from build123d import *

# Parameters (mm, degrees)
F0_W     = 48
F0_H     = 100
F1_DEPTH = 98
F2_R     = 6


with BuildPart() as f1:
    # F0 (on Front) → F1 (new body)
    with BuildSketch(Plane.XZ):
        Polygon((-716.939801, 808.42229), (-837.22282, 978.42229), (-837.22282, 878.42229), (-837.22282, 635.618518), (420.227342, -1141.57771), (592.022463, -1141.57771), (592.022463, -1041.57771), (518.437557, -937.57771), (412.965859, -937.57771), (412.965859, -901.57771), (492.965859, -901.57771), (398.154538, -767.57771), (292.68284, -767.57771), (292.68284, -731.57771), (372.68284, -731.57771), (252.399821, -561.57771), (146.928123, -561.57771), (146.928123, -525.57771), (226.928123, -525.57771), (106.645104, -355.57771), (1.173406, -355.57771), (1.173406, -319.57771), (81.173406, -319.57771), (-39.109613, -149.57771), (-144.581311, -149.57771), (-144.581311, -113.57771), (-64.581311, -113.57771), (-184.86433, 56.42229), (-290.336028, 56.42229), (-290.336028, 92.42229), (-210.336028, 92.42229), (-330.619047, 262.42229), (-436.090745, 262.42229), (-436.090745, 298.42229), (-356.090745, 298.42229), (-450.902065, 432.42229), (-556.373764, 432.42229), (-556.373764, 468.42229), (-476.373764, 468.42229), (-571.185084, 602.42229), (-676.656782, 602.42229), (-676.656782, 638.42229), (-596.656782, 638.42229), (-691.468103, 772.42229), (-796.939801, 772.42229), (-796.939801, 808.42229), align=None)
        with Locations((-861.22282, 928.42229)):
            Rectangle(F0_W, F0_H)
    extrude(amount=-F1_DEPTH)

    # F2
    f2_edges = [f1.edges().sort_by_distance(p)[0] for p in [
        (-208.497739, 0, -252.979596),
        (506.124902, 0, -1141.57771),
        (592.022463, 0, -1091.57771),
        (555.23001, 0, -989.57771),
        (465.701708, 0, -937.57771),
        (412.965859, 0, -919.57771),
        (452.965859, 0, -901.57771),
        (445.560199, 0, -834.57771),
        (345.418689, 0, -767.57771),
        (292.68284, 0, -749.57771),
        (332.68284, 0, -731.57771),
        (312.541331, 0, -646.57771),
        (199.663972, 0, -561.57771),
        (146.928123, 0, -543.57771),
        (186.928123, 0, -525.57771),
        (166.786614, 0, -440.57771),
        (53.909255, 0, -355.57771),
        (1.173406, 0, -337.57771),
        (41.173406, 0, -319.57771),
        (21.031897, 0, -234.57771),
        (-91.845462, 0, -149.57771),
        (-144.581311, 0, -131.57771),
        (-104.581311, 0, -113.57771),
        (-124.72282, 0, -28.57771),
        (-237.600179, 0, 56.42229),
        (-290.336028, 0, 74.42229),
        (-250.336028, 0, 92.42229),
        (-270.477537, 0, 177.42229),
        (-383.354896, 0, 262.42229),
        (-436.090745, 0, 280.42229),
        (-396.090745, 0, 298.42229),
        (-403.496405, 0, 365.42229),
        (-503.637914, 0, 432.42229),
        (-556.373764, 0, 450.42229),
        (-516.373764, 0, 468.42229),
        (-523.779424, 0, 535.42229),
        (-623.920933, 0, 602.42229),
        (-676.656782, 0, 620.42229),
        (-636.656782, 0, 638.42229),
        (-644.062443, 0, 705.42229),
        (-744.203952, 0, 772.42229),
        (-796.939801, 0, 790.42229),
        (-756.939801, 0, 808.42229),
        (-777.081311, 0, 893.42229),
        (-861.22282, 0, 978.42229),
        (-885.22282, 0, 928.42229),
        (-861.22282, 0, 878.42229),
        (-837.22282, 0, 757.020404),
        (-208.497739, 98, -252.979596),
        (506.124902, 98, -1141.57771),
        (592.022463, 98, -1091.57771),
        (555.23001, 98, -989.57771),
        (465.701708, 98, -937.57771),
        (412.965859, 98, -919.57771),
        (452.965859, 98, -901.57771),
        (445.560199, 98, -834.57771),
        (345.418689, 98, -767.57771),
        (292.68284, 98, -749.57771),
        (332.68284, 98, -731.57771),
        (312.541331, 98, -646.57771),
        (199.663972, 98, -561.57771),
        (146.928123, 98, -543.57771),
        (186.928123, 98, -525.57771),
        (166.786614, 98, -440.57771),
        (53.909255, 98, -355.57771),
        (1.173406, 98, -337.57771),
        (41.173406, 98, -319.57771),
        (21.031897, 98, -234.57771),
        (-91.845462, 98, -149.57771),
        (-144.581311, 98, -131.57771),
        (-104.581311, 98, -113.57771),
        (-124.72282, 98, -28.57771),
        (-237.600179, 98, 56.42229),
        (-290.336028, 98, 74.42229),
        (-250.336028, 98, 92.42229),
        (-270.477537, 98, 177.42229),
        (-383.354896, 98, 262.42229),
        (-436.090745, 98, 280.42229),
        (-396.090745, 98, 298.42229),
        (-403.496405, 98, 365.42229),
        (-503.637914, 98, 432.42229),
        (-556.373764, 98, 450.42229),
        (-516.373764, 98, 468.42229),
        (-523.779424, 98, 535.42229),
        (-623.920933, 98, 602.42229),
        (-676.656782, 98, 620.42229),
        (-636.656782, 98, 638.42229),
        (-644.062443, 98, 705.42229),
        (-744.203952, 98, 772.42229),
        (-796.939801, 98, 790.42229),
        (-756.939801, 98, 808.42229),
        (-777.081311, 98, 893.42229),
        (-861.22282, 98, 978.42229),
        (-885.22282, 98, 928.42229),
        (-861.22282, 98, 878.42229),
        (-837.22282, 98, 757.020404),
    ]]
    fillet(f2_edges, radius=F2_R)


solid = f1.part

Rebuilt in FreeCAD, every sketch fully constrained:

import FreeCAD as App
import Part
import Sketcher
Q = App.Units.Quantity


def edges_at(feature, points):
    """Names of the edges that pass closest to the given points."""
    edges = feature.Shape.Edges
    near = lambda p: min(range(len(edges)), key=lambda i: edges[i].distToShape(Part.Vertex(*p))[0])
    return sorted({f"Edge{near(p) + 1}" for p in points})

doc = App.newDocument("Part")
body = doc.addObject("PartDesign::Body", "Body")

# Sketch on XZ plane
sketch1 = body.newObject("Sketcher::SketchObject", "Sketch")
sketch1.AttachmentSupport = (doc.getObject("XZ_Plane"), [""])
sketch1.MapMode = "FlatFace"
sketch1.addGeometry(Part.LineSegment(App.Vector(-717, 808, 0), App.Vector(-837, 978, 0)), False)
sketch1.addGeometry(Part.LineSegment(App.Vector(-837, 978, 0), App.Vector(-885, 978, 0)), False)
sketch1.addGeometry(Part.LineSegment(App.Vector(-885, 978, 0), App.Vector(-885, 878, 0)), False)
sketch1.addGeometry(Part.LineSegment(App.Vector(-885, 878, 0), App.Vector(-837, 878, 0)), False)
sketch1.addGeometry(Part.LineSegment(App.Vector(-837, 878, 0), App.Vector(-837, 636, 0)), False)
sketch1.addGeometry(Part.LineSegment(App.Vector(-837, 636, 0), App.Vector(420, -1142, 0)), False)
sketch1.addGeometry(Part.LineSegment(App.Vector(420, -1142, 0), App.Vector(592, -1142, 0)), False)
sketch1.addGeometry(Part.LineSegment(App.Vector(592, -1142, 0), App.Vector(592, -1042, 0)), False)
sketch1.addGeometry(Part.LineSegment(App.Vector(592, -1042, 0), App.Vector(518, -938, 0)), False)
sketch1.addGeometry(Part.LineSegment(App.Vector(518, -938, 0), App.Vector(413, -938, 0)), False)
sketch1.addGeometry(Part.LineSegment(App.Vector(413, -938, 0), App.Vector(413, -902, 0)), False)
sketch1.addGeometry(Part.LineSegment(App.Vector(413, -902, 0), App.Vector(493, -902, 0)), False)
sketch1.addGeometry(Part.LineSegment(App.Vector(493, -902, 0), App.Vector(398, -768, 0)), False)
sketch1.addGeometry(Part.LineSegment(App.Vector(398, -768, 0), App.Vector(293, -768, 0)), False)
sketch1.addGeometry(Part.LineSegment(App.Vector(293, -768, 0), App.Vector(293, -732, 0)), False)
sketch1.addGeometry(Part.LineSegment(App.Vector(293, -732, 0), App.Vector(373, -732, 0)), False)
sketch1.addGeometry(Part.LineSegment(App.Vector(373, -732, 0), App.Vector(252, -562, 0)), False)
sketch1.addGeometry(Part.LineSegment(App.Vector(252, -562, 0), App.Vector(147, -562, 0)), False)
sketch1.addGeometry(Part.LineSegment(App.Vector(147, -562, 0), App.Vector(147, -526, 0)), False)
sketch1.addGeometry(Part.LineSegment(App.Vector(147, -526, 0), App.Vector(227, -526, 0)), False)
sketch1.addGeometry(Part.LineSegment(App.Vector(227, -526, 0), App.Vector(107, -356, 0)), False)
sketch1.addGeometry(Part.LineSegment(App.Vector(107, -356, 0), App.Vector(1, -356, 0)), False)
sketch1.addGeometry(Part.LineSegment(App.Vector(1, -356, 0), App.Vector(1, -320, 0)), False)
sketch1.addGeometry(Part.LineSegment(App.Vector(1, -320, 0), App.Vector(81, -320, 0)), False)
sketch1.addGeometry(Part.LineSegment(App.Vector(81, -320, 0), App.Vector(-39, -150, 0)), False)
sketch1.addGeometry(Part.LineSegment(App.Vector(-39, -150, 0), App.Vector(-145, -150, 0)), False)
sketch1.addGeometry(Part.LineSegment(App.Vector(-145, -150, 0), App.Vector(-145, -114, 0)), False)
sketch1.addGeometry(Part.LineSegment(App.Vector(-145, -114, 0), App.Vector(-65, -114, 0)), False)
sketch1.addGeometry(Part.LineSegment(App.Vector(-65, -114, 0), App.Vector(-185, 56, 0)), False)
sketch1.addGeometry(Part.LineSegment(App.Vector(-185, 56, 0), App.Vector(-290, 56, 0)), False)
sketch1.addGeometry(Part.LineSegment(App.Vector(-290, 56, 0), App.Vector(-290, 92, 0)), False)
sketch1.addGeometry(Part.LineSegment(App.Vector(-290, 92, 0), App.Vector(-210, 92, 0)), False)
sketch1.addGeometry(Part.LineSegment(App.Vector(-210, 92, 0), App.Vector(-331, 262, 0)), False)
sketch1.addGeometry(Part.LineSegment(App.Vector(-331, 262, 0), App.Vector(-436, 262, 0)), False)
sketch1.addGeometry(Part.LineSegment(App.Vector(-436, 262, 0), App.Vector(-436, 298, 0)), False)
sketch1.addGeometry(Part.LineSegment(App.Vector(-436, 298, 0), App.Vector(-356, 298, 0)), False)
sketch1.addGeometry(Part.LineSegment(App.Vector(-356, 298, 0), App.Vector(-451, 432, 0)), False)
sketch1.addGeometry(Part.LineSegment(App.Vector(-451, 432, 0), App.Vector(-556, 432, 0)), False)
sketch1.addGeometry(Part.LineSegment(App.Vector(-556, 432, 0), App.Vector(-556, 468, 0)), False)
sketch1.addGeometry(Part.LineSegment(App.Vector(-556, 468, 0), App.Vector(-476, 468, 0)), False)
sketch1.addGeometry(Part.LineSegment(App.Vector(-476, 468, 0), App.Vector(-571, 602, 0)), False)
sketch1.addGeometry(Part.LineSegment(App.Vector(-571, 602, 0), App.Vector(-677, 602, 0)), False)
sketch1.addGeometry(Part.LineSegment(App.Vector(-677, 602, 0), App.Vector(-677, 638, 0)), False)
sketch1.addGeometry(Part.LineSegment(App.Vector(-677, 638, 0), App.Vector(-597, 638, 0)), False)
sketch1.addGeometry(Part.LineSegment(App.Vector(-597, 638, 0), App.Vector(-691, 772, 0)), False)
sketch1.addGeometry(Part.LineSegment(App.Vector(-691, 772, 0), App.Vector(-797, 772, 0)), False)
sketch1.addGeometry(Part.LineSegment(App.Vector(-797, 772, 0), App.Vector(-797, 808, 0)), False)
sketch1.addGeometry(Part.LineSegment(App.Vector(-797, 808, 0), App.Vector(-717, 808, 0)), False)
sketch1.addConstraint(Sketcher.Constraint("Coincident", 0, 2, 1, 1))
sketch1.addConstraint(Sketcher.Constraint("Coincident", 1, 2, 2, 1))
sketch1.addConstraint(Sketcher.Constraint("Coincident", 2, 2, 3, 1))
sketch1.addConstraint(Sketcher.Constraint("Coincident", 3, 2, 4, 1))
sketch1.addConstraint(Sketcher.Constraint("Coincident", 4, 2, 5, 1))
sketch1.addConstraint(Sketcher.Constraint("Coincident", 5, 2, 6, 1))
sketch1.addConstraint(Sketcher.Constraint("Coincident", 6, 2, 7, 1))
sketch1.addConstraint(Sketcher.Constraint("Coincident", 7, 2, 8, 1))
sketch1.addConstraint(Sketcher.Constraint("Coincident", 8, 2, 9, 1))
sketch1.addConstraint(Sketcher.Constraint("Coincident", 9, 2, 10, 1))
sketch1.addConstraint(Sketcher.Constraint("Coincident", 10, 2, 11, 1))
sketch1.addConstraint(Sketcher.Constraint("Coincident", 11, 2, 12, 1))
sketch1.addConstraint(Sketcher.Constraint("Coincident", 12, 2, 13, 1))
sketch1.addConstraint(Sketcher.Constraint("Coincident", 13, 2, 14, 1))
sketch1.addConstraint(Sketcher.Constraint("Coincident", 14, 2, 15, 1))
sketch1.addConstraint(Sketcher.Constraint("Coincident", 15, 2, 16, 1))
sketch1.addConstraint(Sketcher.Constraint("Coincident", 16, 2, 17, 1))
sketch1.addConstraint(Sketcher.Constraint("Coincident", 17, 2, 18, 1))
sketch1.addConstraint(Sketcher.Constraint("Coincident", 18, 2, 19, 1))
sketch1.addConstraint(Sketcher.Constraint("Coincident", 19, 2, 20, 1))
sketch1.addConstraint(Sketcher.Constraint("Coincident", 20, 2, 21, 1))
sketch1.addConstraint(Sketcher.Constraint("Coincident", 21, 2, 22, 1))
sketch1.addConstraint(Sketcher.Constraint("Coincident", 22, 2, 23, 1))
sketch1.addConstraint(Sketcher.Constraint("Coincident", 23, 2, 24, 1))
sketch1.addConstraint(Sketcher.Constraint("Coincident", 24, 2, 25, 1))
sketch1.addConstraint(Sketcher.Constraint("Coincident", 25, 2, 26, 1))
sketch1.addConstraint(Sketcher.Constraint("Coincident", 26, 2, 27, 1))
sketch1.addConstraint(Sketcher.Constraint("Coincident", 27, 2, 28, 1))
sketch1.addConstraint(Sketcher.Constraint("Coincident", 28, 2, 29, 1))
sketch1.addConstraint(Sketcher.Constraint("Coincident", 29, 2, 30, 1))
sketch1.addConstraint(Sketcher.Constraint("Coincident", 30, 2, 31, 1))
sketch1.addConstraint(Sketcher.Constraint("Coincident", 31, 2, 32, 1))
sketch1.addConstraint(Sketcher.Constraint("Coincident", 32, 2, 33, 1))
sketch1.addConstraint(Sketcher.Constraint("Coincident", 33, 2, 34, 1))
sketch1.addConstraint(Sketcher.Constraint("Coincident", 34, 2, 35, 1))
sketch1.addConstraint(Sketcher.Constraint("Coincident", 35, 2, 36, 1))
sketch1.addConstraint(Sketcher.Constraint("Coincident", 36, 2, 37, 1))
sketch1.addConstraint(Sketcher.Constraint("Coincident", 37, 2, 38, 1))
sketch1.addConstraint(Sketcher.Constraint("Coincident", 38, 2, 39, 1))
sketch1.addConstraint(Sketcher.Constraint("Coincident", 39, 2, 40, 1))
sketch1.addConstraint(Sketcher.Constraint("Coincident", 40, 2, 41, 1))
sketch1.addConstraint(Sketcher.Constraint("Coincident", 41, 2, 42, 1))
sketch1.addConstraint(Sketcher.Constraint("Coincident", 42, 2, 43, 1))
sketch1.addConstraint(Sketcher.Constraint("Coincident", 43, 2, 44, 1))
sketch1.addConstraint(Sketcher.Constraint("Coincident", 44, 2, 45, 1))
sketch1.addConstraint(Sketcher.Constraint("Coincident", 45, 2, 46, 1))
sketch1.addConstraint(Sketcher.Constraint("Coincident", 46, 2, 47, 1))
sketch1.addConstraint(Sketcher.Constraint("Coincident", 47, 2, 0, 1))
sketch1.addConstraint(Sketcher.Constraint("Horizontal", 1))
sketch1.addConstraint(Sketcher.Constraint("Vertical", 2))
sketch1.addConstraint(Sketcher.Constraint("Horizontal", 3))
sketch1.addConstraint(Sketcher.Constraint("Vertical", 4))
sketch1.addConstraint(Sketcher.Constraint("Horizontal", 6))
sketch1.addConstraint(Sketcher.Constraint("Vertical", 7))
sketch1.addConstraint(Sketcher.Constraint("Horizontal", 9))
sketch1.addConstraint(Sketcher.Constraint("Vertical", 10))
sketch1.addConstraint(Sketcher.Constraint("Horizontal", 11))
sketch1.addConstraint(Sketcher.Constraint("Horizontal", 13))
sketch1.addConstraint(Sketcher.Constraint("Vertical", 14))
sketch1.addConstraint(Sketcher.Constraint("Horizontal", 15))
sketch1.addConstraint(Sketcher.Constraint("Horizontal", 17))
sketch1.addConstraint(Sketcher.Constraint("Vertical", 18))
sketch1.addConstraint(Sketcher.Constraint("Horizontal", 19))
sketch1.addConstraint(Sketcher.Constraint("Horizontal", 21))
sketch1.addConstraint(Sketcher.Constraint("Vertical", 22))
sketch1.addConstraint(Sketcher.Constraint("Horizontal", 23))
sketch1.addConstraint(Sketcher.Constraint("Horizontal", 25))
sketch1.addConstraint(Sketcher.Constraint("Vertical", 26))
sketch1.addConstraint(Sketcher.Constraint("Horizontal", 27))
sketch1.addConstraint(Sketcher.Constraint("Horizontal", 29))
sketch1.addConstraint(Sketcher.Constraint("Vertical", 30))
sketch1.addConstraint(Sketcher.Constraint("Horizontal", 31))
sketch1.addConstraint(Sketcher.Constraint("Horizontal", 33))
sketch1.addConstraint(Sketcher.Constraint("Vertical", 34))
sketch1.addConstraint(Sketcher.Constraint("Horizontal", 35))
sketch1.addConstraint(Sketcher.Constraint("Horizontal", 37))
sketch1.addConstraint(Sketcher.Constraint("Vertical", 38))
sketch1.addConstraint(Sketcher.Constraint("Horizontal", 39))
sketch1.addConstraint(Sketcher.Constraint("Horizontal", 41))
sketch1.addConstraint(Sketcher.Constraint("Vertical", 42))
sketch1.addConstraint(Sketcher.Constraint("Horizontal", 43))
sketch1.addConstraint(Sketcher.Constraint("Horizontal", 45))
sketch1.addConstraint(Sketcher.Constraint("Vertical", 46))
sketch1.addConstraint(Sketcher.Constraint("Horizontal", 47))
sketch1.addConstraint(Sketcher.Constraint("Parallel", 0, 5))
sketch1.addConstraint(Sketcher.Constraint("Parallel", 5, 8))
sketch1.addConstraint(Sketcher.Constraint("Parallel", 8, 12))
sketch1.addConstraint(Sketcher.Constraint("Parallel", 12, 16))
sketch1.addConstraint(Sketcher.Constraint("Parallel", 16, 20))
sketch1.addConstraint(Sketcher.Constraint("Parallel", 20, 24))
sketch1.addConstraint(Sketcher.Constraint("Parallel", 24, 28))
sketch1.addConstraint(Sketcher.Constraint("Parallel", 28, 32))
sketch1.addConstraint(Sketcher.Constraint("Parallel", 32, 36))
sketch1.addConstraint(Sketcher.Constraint("Parallel", 36, 40))
sketch1.addConstraint(Sketcher.Constraint("Parallel", 40, 44))
sketch1.addConstraint(Sketcher.Constraint("Vertical", 0, 2, 3, 2))
sketch1.addConstraint(Sketcher.Constraint("Equal", 9, 13))
sketch1.addConstraint(Sketcher.Constraint("Equal", 11, 15))
sketch1.addConstraint(Sketcher.Constraint("Equal", 13, 17))
sketch1.addConstraint(Sketcher.Constraint("Equal", 15, 19))
sketch1.addConstraint(Sketcher.Constraint("Equal", 17, 21))
sketch1.addConstraint(Sketcher.Constraint("Equal", 19, 23))
sketch1.addConstraint(Sketcher.Constraint("Equal", 21, 25))
sketch1.addConstraint(Sketcher.Constraint("Equal", 23, 27))
sketch1.addConstraint(Sketcher.Constraint("Equal", 25, 29))
sketch1.addConstraint(Sketcher.Constraint("Equal", 27, 31))
sketch1.addConstraint(Sketcher.Constraint("Equal", 29, 33))
sketch1.addConstraint(Sketcher.Constraint("Equal", 31, 35))
sketch1.addConstraint(Sketcher.Constraint("Equal", 33, 37))
sketch1.addConstraint(Sketcher.Constraint("Equal", 35, 39))
sketch1.addConstraint(Sketcher.Constraint("Equal", 37, 41))
sketch1.addConstraint(Sketcher.Constraint("Equal", 39, 43))
sketch1.addConstraint(Sketcher.Constraint("Equal", 41, 45))
sketch1.addConstraint(Sketcher.Constraint("Equal", 43, 47))
sketch1.addConstraint(Sketcher.Constraint("Equal", 2, 7))
sketch1.addConstraint(Sketcher.Constraint("Equal", 10, 14))
sketch1.addConstraint(Sketcher.Constraint("Equal", 14, 18))
sketch1.addConstraint(Sketcher.Constraint("Equal", 18, 22))
sketch1.addConstraint(Sketcher.Constraint("Equal", 22, 26))
sketch1.addConstraint(Sketcher.Constraint("Equal", 26, 30))
sketch1.addConstraint(Sketcher.Constraint("Equal", 30, 34))
sketch1.addConstraint(Sketcher.Constraint("Equal", 34, 38))
sketch1.addConstraint(Sketcher.Constraint("Equal", 38, 42))
sketch1.addConstraint(Sketcher.Constraint("Equal", 42, 46))
sketch1.addConstraint(Sketcher.Constraint("Equal", 0, 16))
sketch1.addConstraint(Sketcher.Constraint("Equal", 16, 20))
sketch1.addConstraint(Sketcher.Constraint("Equal", 20, 24))
sketch1.addConstraint(Sketcher.Constraint("Equal", 24, 28))
sketch1.addConstraint(Sketcher.Constraint("Equal", 28, 32))
sketch1.addConstraint(Sketcher.Constraint("Equal", 12, 36))
sketch1.addConstraint(Sketcher.Constraint("Equal", 36, 40))
sketch1.addConstraint(Sketcher.Constraint("Equal", 40, 44))
sketch1.addConstraint(Sketcher.Constraint("DistanceX", 1, 2, 1, 1, Q("48 mm")))
sketch1.addConstraint(Sketcher.Constraint("DistanceX", 11, 1, 11, 2, Q("80 mm")))
sketch1.addConstraint(Sketcher.Constraint("DistanceY", 2, 2, 2, 1, Q("100 mm")))
sketch1.addConstraint(Sketcher.Constraint("DistanceY", 10, 1, 10, 2, Q("36 mm")))
sketch1.addConstraint(Sketcher.Constraint("DistanceY", 5, 2, 3, 2, Q("2020 mm")))
sketch1.addConstraint(Sketcher.Constraint("DistanceY", 7, 2, 8, 2, Q("104 mm")))
sketch1.addConstraint(Sketcher.Constraint("DistanceY", 10, 2, 12, 2, Q("134 mm")))
sketch1.addConstraint(Sketcher.Constraint("DistanceX", 13, 2, 13, 1, Q("105.471698 mm")))
sketch1.addConstraint(Sketcher.Constraint("DistanceX", 6, 1, 6, 2, Q("171.795121 mm")))
sketch1.addConstraint(Sketcher.Constraint("DistanceY", 4, 2, 4, 1, Q("242.803772 mm")))
sketch1.addConstraint(Sketcher.Constraint("DistanceX", 45, 2, -1, 1, Q("796.939801 mm")))
sketch1.addConstraint(Sketcher.Constraint("DistanceY", -1, 1, 0, 2, Q("978.42229 mm")))
pad1 = body.newObject("PartDesign::Pad", "Pad")
pad1.Profile = sketch1
pad1.Length = 98
pad1.Reversed = True
doc.recompute()

fillet = body.newObject("PartDesign::Fillet", "Fillet")
fillet.Base = (pad1, edges_at(pad1, [
    (-208.498, 0, -252.98),
    (506.125, 0, -1141.578),
    (592.022, 0, -1091.578),
    (555.23, 0, -989.578),
    (465.702, 0, -937.578),
    (412.966, 0, -919.578),
    (452.966, 0, -901.578),
    (445.56, 0, -834.578),
    (345.419, 0, -767.578),
    (292.683, 0, -749.578),
    (332.683, 0, -731.578),
    (312.541, 0, -646.578),
    (199.664, 0, -561.578),
    (146.928, 0, -543.578),
    (186.928, 0, -525.578),
    (166.787, 0, -440.578),
    (53.909, 0, -355.578),
    (1.173, 0, -337.578),
    (41.173, 0, -319.578),
    (21.032, 0, -234.578),
    (-91.845, 0, -149.578),
    (-144.581, 0, -131.578),
    (-104.581, 0, -113.578),
    (-124.723, 0, -28.578),
    (-237.6, 0, 56.422),
    (-290.336, 0, 74.422),
    (-250.336, 0, 92.422),
    (-270.478, 0, 177.422),
    (-383.355, 0, 262.422),
    (-436.091, 0, 280.422),
    (-396.091, 0, 298.422),
    (-403.496, 0, 365.422),
    (-503.638, 0, 432.422),
    (-556.374, 0, 450.422),
    (-516.374, 0, 468.422),
    (-523.779, 0, 535.422),
    (-623.921, 0, 602.422),
    (-676.657, 0, 620.422),
    (-636.657, 0, 638.422),
    (-644.062, 0, 705.422),
    (-744.204, 0, 772.422),
    (-796.94, 0, 790.422),
    (-756.94, 0, 808.422),
    (-777.081, 0, 893.422),
    (-861.223, 0, 978.422),
    (-885.223, 0, 928.422),
    (-861.223, 0, 878.422),
    (-837.223, 0, 757.02),
    (-208.498, 98, -252.98),
    (506.125, 98, -1141.578),
    (592.022, 98, -1091.578),
    (555.23, 98, -989.578),
    (465.702, 98, -937.578),
    (412.966, 98, -919.578),
    (452.966, 98, -901.578),
    (445.56, 98, -834.578),
    (345.419, 98, -767.578),
    (292.683, 98, -749.578),
    (332.683, 98, -731.578),
    (312.541, 98, -646.578),
    (199.664, 98, -561.578),
    (146.928, 98, -543.578),
    (186.928, 98, -525.578),
    (166.787, 98, -440.578),
    (53.909, 98, -355.578),
    (1.173, 98, -337.578),
    (41.173, 98, -319.578),
    (21.032, 98, -234.578),
    (-91.845, 98, -149.578),
    (-144.581, 98, -131.578),
    (-104.581, 98, -113.578),
    (-124.723, 98, -28.578),
    (-237.6, 98, 56.422),
    (-290.336, 98, 74.422),
    (-250.336, 98, 92.422),
    (-270.478, 98, 177.422),
    (-383.355, 98, 262.422),
    (-436.091, 98, 280.422),
    (-396.091, 98, 298.422),
    (-403.496, 98, 365.422),
    (-503.638, 98, 432.422),
    (-556.374, 98, 450.422),
    (-516.374, 98, 468.422),
    (-523.779, 98, 535.422),
    (-623.921, 98, 602.422),
    (-676.657, 98, 620.422),
    (-636.657, 98, 638.422),
    (-644.062, 98, 705.422),
    (-744.204, 98, 772.422),
    (-796.94, 98, 790.422),
    (-756.94, 98, 808.422),
    (-777.081, 98, 893.422),
    (-861.223, 98, 978.422),
    (-885.223, 98, 928.422),
    (-861.223, 98, 878.422),
    (-837.223, 98, 757.02),
]))
fillet.Radius = 6

doc.recompute()
